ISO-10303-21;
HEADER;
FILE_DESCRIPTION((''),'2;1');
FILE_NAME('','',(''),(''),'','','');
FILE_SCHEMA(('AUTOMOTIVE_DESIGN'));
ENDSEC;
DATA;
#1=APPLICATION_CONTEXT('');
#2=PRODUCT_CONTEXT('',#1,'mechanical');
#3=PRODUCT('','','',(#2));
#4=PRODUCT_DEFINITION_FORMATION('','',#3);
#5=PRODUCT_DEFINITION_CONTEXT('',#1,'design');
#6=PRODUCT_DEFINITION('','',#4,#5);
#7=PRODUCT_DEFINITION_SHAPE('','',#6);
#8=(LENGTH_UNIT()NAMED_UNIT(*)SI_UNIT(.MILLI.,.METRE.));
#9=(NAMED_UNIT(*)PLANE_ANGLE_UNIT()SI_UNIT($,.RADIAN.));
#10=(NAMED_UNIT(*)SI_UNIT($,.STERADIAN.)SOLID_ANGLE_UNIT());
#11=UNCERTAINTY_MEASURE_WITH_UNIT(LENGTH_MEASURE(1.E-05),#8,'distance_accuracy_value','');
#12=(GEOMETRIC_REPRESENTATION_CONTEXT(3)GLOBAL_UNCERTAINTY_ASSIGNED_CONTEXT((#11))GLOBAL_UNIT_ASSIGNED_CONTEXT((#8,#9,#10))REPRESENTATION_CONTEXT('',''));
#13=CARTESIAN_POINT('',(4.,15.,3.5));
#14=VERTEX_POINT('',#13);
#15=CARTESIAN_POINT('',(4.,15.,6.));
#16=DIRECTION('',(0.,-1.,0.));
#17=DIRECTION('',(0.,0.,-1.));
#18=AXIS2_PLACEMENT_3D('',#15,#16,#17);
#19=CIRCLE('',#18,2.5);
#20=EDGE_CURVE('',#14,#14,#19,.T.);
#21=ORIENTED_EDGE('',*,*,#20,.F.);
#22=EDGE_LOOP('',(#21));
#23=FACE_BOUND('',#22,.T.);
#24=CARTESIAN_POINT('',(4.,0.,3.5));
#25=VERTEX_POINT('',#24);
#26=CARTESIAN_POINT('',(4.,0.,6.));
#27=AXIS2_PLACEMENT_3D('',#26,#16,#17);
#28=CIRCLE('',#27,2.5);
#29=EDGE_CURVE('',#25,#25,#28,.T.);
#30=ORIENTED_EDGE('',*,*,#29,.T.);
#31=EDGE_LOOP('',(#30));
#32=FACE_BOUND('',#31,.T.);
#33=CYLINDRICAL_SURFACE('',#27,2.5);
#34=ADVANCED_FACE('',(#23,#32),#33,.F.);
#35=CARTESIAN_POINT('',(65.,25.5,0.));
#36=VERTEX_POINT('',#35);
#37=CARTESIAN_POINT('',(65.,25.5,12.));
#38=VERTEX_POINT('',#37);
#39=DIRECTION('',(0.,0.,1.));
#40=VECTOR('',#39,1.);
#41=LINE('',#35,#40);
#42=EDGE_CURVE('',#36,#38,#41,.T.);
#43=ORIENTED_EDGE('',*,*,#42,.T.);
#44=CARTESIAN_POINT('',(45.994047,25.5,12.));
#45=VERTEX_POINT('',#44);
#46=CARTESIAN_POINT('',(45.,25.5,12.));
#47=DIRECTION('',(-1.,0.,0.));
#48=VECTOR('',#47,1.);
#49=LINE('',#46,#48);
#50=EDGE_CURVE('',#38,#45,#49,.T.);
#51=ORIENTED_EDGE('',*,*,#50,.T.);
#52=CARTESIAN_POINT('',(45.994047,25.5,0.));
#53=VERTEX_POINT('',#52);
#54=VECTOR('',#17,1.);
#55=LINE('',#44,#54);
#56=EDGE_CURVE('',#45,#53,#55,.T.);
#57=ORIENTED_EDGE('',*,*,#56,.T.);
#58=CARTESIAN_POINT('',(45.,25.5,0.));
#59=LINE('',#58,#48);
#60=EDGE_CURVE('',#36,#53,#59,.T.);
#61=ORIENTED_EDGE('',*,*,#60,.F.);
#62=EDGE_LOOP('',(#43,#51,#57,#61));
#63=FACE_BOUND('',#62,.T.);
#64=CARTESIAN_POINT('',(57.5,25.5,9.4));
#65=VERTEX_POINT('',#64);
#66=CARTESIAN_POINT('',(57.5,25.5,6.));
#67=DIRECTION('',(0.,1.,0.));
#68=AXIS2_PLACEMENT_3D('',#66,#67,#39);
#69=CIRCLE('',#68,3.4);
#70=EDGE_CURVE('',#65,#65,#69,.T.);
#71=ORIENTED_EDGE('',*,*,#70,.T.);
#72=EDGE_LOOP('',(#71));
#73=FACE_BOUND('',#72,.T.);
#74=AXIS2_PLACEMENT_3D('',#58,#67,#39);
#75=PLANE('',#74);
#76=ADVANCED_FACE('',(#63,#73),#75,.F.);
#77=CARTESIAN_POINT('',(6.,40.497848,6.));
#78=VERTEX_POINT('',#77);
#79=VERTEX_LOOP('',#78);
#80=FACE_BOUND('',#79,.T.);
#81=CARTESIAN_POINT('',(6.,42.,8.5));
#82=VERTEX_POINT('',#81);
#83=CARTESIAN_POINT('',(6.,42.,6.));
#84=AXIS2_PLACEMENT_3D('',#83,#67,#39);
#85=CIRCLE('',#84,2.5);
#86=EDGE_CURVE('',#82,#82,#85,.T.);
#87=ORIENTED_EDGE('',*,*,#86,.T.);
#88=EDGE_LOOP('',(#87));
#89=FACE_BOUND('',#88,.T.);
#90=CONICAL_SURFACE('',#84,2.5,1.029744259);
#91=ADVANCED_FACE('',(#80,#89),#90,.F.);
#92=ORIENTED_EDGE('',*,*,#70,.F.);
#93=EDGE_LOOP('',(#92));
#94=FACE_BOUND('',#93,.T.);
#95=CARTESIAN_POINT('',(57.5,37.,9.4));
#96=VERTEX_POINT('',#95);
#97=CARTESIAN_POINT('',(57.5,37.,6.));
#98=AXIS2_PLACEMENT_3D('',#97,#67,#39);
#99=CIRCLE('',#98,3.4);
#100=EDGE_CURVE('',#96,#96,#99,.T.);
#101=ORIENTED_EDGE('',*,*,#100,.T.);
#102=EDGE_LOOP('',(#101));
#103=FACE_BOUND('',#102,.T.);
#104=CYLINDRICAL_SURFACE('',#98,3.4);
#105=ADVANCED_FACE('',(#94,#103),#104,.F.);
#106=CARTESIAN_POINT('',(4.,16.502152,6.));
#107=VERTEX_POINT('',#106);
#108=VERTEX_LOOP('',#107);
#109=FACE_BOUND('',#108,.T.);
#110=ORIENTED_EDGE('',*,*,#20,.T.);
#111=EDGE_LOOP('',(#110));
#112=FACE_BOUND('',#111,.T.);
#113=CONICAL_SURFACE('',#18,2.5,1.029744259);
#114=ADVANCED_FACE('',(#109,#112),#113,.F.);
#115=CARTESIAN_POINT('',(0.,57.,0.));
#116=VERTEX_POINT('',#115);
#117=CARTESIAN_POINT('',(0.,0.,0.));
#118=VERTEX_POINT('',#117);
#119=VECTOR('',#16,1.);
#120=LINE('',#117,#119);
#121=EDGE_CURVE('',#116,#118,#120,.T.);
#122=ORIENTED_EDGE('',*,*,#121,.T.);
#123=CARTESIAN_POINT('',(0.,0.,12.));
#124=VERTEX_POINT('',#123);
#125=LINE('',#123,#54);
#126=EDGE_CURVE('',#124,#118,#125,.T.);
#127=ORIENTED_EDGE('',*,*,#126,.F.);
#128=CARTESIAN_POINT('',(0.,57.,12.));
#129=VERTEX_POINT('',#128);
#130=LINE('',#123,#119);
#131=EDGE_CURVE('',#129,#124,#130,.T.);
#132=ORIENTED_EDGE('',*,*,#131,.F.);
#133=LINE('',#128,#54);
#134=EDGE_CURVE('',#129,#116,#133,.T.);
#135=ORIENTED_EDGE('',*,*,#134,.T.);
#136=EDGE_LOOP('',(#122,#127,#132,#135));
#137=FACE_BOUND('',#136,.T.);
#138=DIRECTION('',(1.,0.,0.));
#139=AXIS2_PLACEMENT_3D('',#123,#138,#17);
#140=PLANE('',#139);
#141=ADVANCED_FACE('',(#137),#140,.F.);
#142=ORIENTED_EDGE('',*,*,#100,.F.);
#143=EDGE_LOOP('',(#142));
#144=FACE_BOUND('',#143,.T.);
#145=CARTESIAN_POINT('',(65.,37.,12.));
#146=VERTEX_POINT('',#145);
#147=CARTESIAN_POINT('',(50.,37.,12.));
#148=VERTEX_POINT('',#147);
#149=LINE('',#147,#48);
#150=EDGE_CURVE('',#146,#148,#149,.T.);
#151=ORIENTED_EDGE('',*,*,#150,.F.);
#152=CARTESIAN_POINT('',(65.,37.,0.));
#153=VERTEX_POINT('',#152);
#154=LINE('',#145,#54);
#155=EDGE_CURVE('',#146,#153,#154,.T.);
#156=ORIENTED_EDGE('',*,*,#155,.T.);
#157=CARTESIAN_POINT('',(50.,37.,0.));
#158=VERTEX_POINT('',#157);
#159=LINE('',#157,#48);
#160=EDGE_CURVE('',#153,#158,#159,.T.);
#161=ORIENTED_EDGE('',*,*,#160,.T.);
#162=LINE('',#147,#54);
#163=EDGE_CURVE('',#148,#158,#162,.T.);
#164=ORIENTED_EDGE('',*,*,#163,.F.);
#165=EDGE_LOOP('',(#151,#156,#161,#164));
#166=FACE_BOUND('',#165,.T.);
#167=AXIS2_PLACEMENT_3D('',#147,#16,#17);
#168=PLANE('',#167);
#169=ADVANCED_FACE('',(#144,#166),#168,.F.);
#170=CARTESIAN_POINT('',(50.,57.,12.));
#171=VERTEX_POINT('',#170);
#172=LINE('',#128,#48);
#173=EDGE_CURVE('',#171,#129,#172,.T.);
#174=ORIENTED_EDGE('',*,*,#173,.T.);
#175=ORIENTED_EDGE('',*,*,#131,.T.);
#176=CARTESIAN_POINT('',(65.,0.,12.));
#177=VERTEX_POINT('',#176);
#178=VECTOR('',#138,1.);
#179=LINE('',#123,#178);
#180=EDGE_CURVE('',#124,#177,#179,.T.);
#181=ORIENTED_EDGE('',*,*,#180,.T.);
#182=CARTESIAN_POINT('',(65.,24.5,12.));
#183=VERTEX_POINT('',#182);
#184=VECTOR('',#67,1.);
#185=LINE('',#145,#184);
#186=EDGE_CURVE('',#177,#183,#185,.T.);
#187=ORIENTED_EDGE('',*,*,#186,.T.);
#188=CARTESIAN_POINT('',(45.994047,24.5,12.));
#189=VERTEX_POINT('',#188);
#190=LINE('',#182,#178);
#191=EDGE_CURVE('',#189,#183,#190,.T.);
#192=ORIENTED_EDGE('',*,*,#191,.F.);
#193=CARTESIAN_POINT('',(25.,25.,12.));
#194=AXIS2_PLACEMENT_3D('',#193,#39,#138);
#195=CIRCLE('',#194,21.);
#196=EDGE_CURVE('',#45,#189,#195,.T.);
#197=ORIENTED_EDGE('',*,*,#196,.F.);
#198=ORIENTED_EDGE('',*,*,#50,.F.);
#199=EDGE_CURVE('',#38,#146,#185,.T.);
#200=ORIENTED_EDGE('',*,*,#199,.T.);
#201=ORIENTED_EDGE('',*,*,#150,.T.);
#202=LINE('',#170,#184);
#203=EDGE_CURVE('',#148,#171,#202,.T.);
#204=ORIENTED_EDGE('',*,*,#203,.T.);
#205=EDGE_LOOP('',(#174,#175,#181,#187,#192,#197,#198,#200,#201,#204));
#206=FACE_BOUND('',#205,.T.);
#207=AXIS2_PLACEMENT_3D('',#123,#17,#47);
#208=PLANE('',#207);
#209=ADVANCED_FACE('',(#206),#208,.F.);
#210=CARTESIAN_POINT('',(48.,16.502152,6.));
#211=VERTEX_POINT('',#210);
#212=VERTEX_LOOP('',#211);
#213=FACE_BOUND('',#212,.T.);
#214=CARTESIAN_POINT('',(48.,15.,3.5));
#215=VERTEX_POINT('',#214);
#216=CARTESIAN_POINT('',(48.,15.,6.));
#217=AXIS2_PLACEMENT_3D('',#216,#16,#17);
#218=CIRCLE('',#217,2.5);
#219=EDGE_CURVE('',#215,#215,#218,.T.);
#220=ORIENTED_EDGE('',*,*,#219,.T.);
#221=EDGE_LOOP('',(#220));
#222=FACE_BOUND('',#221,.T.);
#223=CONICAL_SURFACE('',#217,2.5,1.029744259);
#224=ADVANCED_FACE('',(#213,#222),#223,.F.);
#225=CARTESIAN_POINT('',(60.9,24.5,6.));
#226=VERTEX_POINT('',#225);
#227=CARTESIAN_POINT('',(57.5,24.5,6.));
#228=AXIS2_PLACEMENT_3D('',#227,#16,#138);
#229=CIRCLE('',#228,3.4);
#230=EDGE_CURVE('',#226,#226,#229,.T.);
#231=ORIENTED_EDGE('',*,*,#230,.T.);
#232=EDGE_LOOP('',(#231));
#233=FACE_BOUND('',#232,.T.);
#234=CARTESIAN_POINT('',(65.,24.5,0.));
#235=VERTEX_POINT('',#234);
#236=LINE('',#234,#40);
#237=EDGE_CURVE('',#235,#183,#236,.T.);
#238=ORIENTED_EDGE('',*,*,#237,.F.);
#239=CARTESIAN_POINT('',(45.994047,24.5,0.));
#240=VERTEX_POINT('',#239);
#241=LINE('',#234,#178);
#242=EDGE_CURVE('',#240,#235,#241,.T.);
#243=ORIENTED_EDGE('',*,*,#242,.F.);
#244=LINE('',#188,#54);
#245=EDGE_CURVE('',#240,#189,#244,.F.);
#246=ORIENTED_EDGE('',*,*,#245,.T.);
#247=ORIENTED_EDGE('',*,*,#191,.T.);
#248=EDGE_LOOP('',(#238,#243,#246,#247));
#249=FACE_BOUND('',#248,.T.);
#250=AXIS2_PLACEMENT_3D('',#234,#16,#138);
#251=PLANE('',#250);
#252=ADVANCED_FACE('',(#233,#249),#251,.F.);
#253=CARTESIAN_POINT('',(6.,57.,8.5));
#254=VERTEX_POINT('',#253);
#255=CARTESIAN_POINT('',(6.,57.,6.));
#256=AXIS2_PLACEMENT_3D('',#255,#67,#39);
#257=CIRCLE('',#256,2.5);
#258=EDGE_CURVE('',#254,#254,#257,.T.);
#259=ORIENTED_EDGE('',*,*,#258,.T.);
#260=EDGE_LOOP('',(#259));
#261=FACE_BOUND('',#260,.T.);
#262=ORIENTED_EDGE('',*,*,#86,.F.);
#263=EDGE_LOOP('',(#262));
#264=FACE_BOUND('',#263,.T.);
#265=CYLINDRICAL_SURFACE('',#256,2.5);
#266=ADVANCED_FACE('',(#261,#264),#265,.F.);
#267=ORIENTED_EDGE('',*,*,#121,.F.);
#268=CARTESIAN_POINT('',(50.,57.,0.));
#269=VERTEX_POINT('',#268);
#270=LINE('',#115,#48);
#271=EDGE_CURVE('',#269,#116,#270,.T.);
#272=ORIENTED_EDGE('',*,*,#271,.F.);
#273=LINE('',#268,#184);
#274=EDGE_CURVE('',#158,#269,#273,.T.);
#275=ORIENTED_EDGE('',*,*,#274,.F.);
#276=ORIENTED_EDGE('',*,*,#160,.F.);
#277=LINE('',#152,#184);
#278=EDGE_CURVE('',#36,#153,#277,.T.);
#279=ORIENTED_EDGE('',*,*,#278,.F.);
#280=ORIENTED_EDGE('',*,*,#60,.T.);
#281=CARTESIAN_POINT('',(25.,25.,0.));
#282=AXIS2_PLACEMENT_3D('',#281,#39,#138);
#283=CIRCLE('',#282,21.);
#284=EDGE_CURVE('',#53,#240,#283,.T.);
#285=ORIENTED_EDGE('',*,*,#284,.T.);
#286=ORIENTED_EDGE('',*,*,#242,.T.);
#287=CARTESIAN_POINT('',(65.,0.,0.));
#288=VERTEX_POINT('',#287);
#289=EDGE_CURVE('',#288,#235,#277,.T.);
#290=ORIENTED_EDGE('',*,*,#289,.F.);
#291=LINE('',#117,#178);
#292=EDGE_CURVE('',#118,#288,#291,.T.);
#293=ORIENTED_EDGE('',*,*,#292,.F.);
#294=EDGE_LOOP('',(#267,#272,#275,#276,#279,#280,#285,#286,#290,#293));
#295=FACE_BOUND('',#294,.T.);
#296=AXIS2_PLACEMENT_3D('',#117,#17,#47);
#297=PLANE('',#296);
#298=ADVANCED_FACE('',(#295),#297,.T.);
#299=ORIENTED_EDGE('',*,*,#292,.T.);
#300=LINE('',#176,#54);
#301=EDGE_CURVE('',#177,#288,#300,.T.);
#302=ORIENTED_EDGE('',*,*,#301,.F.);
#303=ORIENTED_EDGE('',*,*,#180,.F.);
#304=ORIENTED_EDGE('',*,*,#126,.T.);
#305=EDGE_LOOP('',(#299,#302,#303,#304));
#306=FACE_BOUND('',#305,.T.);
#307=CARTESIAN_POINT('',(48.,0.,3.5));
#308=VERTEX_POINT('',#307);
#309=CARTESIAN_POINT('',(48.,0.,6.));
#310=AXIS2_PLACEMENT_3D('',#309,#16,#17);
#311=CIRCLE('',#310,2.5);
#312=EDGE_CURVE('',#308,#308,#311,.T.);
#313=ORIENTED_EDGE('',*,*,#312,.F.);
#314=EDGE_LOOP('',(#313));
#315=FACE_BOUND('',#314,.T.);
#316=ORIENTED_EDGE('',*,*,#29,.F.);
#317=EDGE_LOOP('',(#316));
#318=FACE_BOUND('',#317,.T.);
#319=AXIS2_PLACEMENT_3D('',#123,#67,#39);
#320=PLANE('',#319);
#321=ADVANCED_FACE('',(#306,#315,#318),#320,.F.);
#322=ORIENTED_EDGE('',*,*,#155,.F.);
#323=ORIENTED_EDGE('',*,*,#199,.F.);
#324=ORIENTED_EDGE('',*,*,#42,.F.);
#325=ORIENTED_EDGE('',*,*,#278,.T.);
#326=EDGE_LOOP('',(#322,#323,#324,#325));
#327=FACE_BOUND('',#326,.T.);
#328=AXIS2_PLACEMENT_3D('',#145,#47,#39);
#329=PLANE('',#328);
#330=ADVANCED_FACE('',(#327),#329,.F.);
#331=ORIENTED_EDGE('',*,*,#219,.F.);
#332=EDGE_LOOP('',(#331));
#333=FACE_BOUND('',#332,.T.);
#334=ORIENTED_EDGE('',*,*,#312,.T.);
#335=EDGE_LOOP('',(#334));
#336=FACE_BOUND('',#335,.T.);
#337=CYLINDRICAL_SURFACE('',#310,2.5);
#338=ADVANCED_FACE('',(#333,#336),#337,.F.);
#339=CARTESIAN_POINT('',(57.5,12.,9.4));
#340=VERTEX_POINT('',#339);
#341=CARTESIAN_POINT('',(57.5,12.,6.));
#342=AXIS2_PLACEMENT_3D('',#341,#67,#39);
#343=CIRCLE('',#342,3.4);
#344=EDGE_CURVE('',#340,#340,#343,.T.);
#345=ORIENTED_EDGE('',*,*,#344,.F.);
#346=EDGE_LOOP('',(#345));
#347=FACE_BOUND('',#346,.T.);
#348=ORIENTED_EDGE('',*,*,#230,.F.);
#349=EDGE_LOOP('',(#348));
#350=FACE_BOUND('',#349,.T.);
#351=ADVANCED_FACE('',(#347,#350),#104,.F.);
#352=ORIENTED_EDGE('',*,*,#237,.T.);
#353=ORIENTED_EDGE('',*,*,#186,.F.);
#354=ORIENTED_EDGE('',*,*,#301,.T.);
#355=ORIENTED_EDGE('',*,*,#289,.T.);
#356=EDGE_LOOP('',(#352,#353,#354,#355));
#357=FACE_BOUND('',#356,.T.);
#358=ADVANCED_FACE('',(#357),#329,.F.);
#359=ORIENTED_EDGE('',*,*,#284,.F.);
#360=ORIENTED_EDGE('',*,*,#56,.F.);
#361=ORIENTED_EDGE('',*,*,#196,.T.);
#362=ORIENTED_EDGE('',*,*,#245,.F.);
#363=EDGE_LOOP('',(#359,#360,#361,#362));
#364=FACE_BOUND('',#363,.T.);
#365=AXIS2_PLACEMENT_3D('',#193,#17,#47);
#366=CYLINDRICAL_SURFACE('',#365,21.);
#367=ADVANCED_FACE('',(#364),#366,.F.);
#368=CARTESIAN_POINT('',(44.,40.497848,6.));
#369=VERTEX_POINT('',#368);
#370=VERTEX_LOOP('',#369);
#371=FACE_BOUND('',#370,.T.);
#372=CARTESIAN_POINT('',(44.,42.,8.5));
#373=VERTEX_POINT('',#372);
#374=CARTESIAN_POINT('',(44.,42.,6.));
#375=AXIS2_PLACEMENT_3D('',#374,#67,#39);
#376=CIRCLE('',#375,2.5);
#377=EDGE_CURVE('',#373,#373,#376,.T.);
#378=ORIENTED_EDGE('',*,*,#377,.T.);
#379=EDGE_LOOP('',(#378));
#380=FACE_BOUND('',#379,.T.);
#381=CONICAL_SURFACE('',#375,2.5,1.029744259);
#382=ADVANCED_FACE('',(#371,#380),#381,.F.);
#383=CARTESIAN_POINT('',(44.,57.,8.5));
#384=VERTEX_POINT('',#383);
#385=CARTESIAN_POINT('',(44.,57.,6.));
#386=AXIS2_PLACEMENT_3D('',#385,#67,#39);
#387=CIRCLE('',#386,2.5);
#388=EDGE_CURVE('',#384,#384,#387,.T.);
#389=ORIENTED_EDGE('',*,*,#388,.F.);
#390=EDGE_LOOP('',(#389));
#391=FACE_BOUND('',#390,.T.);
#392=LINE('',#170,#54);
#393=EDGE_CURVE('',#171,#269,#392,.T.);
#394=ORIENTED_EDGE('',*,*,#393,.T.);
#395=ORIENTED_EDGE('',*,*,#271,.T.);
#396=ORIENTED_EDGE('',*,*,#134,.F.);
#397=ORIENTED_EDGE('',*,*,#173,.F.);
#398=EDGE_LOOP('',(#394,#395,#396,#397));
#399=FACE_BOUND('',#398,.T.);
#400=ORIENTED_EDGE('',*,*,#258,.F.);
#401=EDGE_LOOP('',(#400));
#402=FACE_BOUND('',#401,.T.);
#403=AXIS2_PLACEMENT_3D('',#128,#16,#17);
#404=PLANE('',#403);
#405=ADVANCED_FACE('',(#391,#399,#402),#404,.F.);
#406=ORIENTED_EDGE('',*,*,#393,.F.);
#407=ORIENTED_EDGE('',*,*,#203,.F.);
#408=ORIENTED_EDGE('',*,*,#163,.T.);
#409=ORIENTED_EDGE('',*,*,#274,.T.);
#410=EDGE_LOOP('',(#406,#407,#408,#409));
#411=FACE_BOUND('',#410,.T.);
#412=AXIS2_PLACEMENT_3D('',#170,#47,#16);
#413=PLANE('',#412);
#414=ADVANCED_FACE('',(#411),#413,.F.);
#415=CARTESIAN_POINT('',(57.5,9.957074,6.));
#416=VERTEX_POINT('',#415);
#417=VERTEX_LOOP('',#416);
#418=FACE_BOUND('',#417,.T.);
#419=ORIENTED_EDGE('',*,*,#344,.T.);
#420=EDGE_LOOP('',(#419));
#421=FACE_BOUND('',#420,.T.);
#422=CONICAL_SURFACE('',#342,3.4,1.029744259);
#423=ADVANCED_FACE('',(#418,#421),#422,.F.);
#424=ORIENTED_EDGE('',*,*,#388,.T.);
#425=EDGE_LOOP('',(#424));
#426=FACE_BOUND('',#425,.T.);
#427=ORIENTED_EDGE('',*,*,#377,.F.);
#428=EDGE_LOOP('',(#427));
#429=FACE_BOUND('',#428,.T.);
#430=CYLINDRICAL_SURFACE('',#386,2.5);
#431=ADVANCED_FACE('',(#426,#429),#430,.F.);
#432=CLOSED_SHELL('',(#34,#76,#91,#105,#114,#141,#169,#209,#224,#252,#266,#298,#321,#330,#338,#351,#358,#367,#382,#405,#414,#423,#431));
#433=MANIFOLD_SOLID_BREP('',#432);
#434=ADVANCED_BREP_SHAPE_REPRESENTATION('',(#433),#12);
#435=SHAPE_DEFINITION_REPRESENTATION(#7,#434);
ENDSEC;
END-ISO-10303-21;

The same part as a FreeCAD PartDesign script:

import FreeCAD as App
import Part
import Sketcher

V = App.Vector


def add_polygon(sketch, points):
    """Adds a closed chain of lines whose ends are joined by coincident constraints."""
    first, n = sketch.GeometryCount, len(points)
    for a, b in zip(points, points[1:] + points[:1]):
        sketch.addGeometry(Part.LineSegment(App.Vector(*a, 0), App.Vector(*b, 0)), False)
    for i in range(n):
        sketch.addConstraint(Sketcher.Constraint("Coincident", first + i, 2, first + (i + 1) % n, 1))

doc = App.newDocument("Part")
body = doc.addObject("PartDesign::Body", "Body")

# Sketch on XY plane
sketch1 = body.newObject("Sketcher::SketchObject", "Sketch")
sketch1.AttachmentSupport = (doc.getObject("XY_Plane"), [""])
sketch1.MapMode = "FlatFace"
add_polygon(sketch1, [(0, 57), (0, 0), (65, 0), (65, 37), (50, 37), (50, 57)])  # lines 0-5
sketch1.addGeometry(Part.Circle(V(25, 25, 0), V(0, 0, 1), 21), False)  # 6
sketch1.addConstraint([
    Sketcher.Constraint("Vertical", 0),
    Sketcher.Constraint("Horizontal", 1),
    Sketcher.Constraint("Vertical", 2),
    Sketcher.Constraint("Horizontal", 3),
    Sketcher.Constraint("Vertical", 4),
    Sketcher.Constraint("Horizontal", 5),
    Sketcher.Constraint("Coincident", 0, 2, -1, 1),
    Sketcher.Constraint("Diameter", 6, 42.0),
    Sketcher.Constraint("DistanceX", 1, 1, 1, 2, 65.0),
    Sketcher.Constraint("DistanceX", 3, 2, 3, 1, 15.0),
    Sketcher.Constraint("DistanceY", 0, 2, 0, 1, 57.0),
    Sketcher.Constraint("DistanceY", 2, 1, 2, 2, 37.0),
    Sketcher.Constraint("DistanceX", -1, 1, 6, 3, 25.0),
    Sketcher.Constraint("DistanceY", -1, 1, 6, 3, 25.0),
])
pad1 = body.newObject("PartDesign::Pad", "Pad")
pad1.Profile = sketch1
pad1.Length = 12

# Sketch on XY plane
sketch2 = body.newObject("Sketcher::SketchObject", "Sketch001")
sketch2.AttachmentSupport = (doc.getObject("XY_Plane"), [""])
sketch2.MapMode = "FlatFace"
sketch2.AttachmentOffset = App.Placement(V(0, 0, 12), App.Rotation())
add_polygon(sketch2, [(45, 25.5), (45, 24.5), (65, 24.5), (65, 25.5)])  # lines 0-3
sketch2.addConstraint([
    Sketcher.Constraint("Vertical", 0),
    Sketcher.Constraint("Horizontal", 1),
    Sketcher.Constraint("Vertical", 2),
    Sketcher.Constraint("Horizontal", 3),
    Sketcher.Constraint("DistanceX", 1, 1, 1, 2, 20.0),
    Sketcher.Constraint("DistanceY", 0, 2, 0, 1, 1.0),
    Sketcher.Constraint("DistanceX", -1, 1, 0, 2, 45.0),
    Sketcher.Constraint("DistanceY", -1, 1, 0, 2, 24.5),
])
pocket1 = body.newObject("PartDesign::Pocket", "Pocket")
pocket1.Profile = sketch2
pocket1.Type = "ThroughAll"

# Sketch on XZ plane
sketch3 = body.newObject("Sketcher::SketchObject", "Sketch002")
sketch3.AttachmentSupport = (doc.getObject("XZ_Plane"), [""])
sketch3.MapMode = "FlatFace"
sketch3.AttachmentOffset = App.Placement(V(0, 0, -37), App.Rotation())
sketch3.addGeometry(Part.Circle(V(57.5, 6, 0), V(0, 0, 1), 3.4), False)
sketch3.addConstraint([
    Sketcher.Constraint("Diameter", 0, 6.8),
    Sketcher.Constraint("DistanceY", -1, 1, 0, 3, 6.0),
    Sketcher.Constraint("DistanceX", -1, 1, 0, 3, 57.5),
])
doc.recompute()
hole = body.newObject("PartDesign::Hole", "Hole")
hole.Profile = sketch3
hole.ThreadType = "None"
hole.Diameter = 6.8
hole.DepthType = "Dimension"
hole.Depth = 25
hole.DrillPoint = "Angled"
hole.DrillPointAngle = 118
hole.Reversed = True

# Sketch on XZ plane
sketch4 = body.newObject("Sketcher::SketchObject", "Sketch003")
sketch4.AttachmentSupport = (doc.getObject("XZ_Plane"), [""])
sketch4.MapMode = "FlatFace"
sketch4.AttachmentOffset = App.Placement(V(0, 0, -57), App.Rotation())
sketch4.addGeometry([
    Part.Circle(V(6, 6, 0), V(0, 0, 1), 2.5),
    Part.Circle(V(44, 6, 0), V(0, 0, 1), 2.5),
], False)
sketch4.addConstraint([
    Sketcher.Constraint("Equal", 0, 1),
    Sketcher.Constraint("Horizontal", 0, 3, 1, 3),
    Sketcher.Constraint("Diameter", 0, 5.0),
    Sketcher.Constraint("DistanceX", -1, 1, 0, 3, 6.0),
    Sketcher.Constraint("DistanceY", -1, 1, 0, 3, 6.0),
    Sketcher.Constraint("DistanceX", -1, 1, 1, 3, 44.0),
])
doc.recompute()
hole2 = body.newObject("PartDesign::Hole", "Hole001")
hole2.Profile = sketch4
hole2.ThreadType = "None"
hole2.Diameter = 5
hole2.DepthType = "Dimension"
hole2.Depth = 15
hole2.DrillPoint = "Angled"
hole2.DrillPointAngle = 118
hole2.Reversed = True

# Sketch on XZ plane
sketch5 = body.newObject("Sketcher::SketchObject", "Sketch004")
sketch5.AttachmentSupport = (doc.getObject("XZ_Plane"), [""])
sketch5.MapMode = "FlatFace"
sketch5.addGeometry([
    Part.Circle(V(4, 6, 0), V(0, 0, 1), 2.5),
    Part.Circle(V(48, 6, 0), V(0, 0, 1), 2.5),
], False)
sketch5.addConstraint([
    Sketcher.Constraint("Equal", 0, 1),
    Sketcher.Constraint("Horizontal", 0, 3, 1, 3),
    Sketcher.Constraint("Diameter", 0, 5.0),
    Sketcher.Constraint("DistanceX", -1, 1, 0, 3, 4.0),
    Sketcher.Constraint("DistanceY", -1, 1, 0, 3, 6.0),
    Sketcher.Constraint("DistanceX", -1, 1, 1, 3, 48.0),
])
doc.recompute()
hole3 = body.newObject("PartDesign::Hole", "Hole002")
hole3.Profile = sketch5
hole3.ThreadType = "None"
hole3.Diameter = 5
hole3.DepthType = "Dimension"
hole3.Depth = 15
hole3.DrillPoint = "Angled"
hole3.DrillPointAngle = 118

doc.recompute()
